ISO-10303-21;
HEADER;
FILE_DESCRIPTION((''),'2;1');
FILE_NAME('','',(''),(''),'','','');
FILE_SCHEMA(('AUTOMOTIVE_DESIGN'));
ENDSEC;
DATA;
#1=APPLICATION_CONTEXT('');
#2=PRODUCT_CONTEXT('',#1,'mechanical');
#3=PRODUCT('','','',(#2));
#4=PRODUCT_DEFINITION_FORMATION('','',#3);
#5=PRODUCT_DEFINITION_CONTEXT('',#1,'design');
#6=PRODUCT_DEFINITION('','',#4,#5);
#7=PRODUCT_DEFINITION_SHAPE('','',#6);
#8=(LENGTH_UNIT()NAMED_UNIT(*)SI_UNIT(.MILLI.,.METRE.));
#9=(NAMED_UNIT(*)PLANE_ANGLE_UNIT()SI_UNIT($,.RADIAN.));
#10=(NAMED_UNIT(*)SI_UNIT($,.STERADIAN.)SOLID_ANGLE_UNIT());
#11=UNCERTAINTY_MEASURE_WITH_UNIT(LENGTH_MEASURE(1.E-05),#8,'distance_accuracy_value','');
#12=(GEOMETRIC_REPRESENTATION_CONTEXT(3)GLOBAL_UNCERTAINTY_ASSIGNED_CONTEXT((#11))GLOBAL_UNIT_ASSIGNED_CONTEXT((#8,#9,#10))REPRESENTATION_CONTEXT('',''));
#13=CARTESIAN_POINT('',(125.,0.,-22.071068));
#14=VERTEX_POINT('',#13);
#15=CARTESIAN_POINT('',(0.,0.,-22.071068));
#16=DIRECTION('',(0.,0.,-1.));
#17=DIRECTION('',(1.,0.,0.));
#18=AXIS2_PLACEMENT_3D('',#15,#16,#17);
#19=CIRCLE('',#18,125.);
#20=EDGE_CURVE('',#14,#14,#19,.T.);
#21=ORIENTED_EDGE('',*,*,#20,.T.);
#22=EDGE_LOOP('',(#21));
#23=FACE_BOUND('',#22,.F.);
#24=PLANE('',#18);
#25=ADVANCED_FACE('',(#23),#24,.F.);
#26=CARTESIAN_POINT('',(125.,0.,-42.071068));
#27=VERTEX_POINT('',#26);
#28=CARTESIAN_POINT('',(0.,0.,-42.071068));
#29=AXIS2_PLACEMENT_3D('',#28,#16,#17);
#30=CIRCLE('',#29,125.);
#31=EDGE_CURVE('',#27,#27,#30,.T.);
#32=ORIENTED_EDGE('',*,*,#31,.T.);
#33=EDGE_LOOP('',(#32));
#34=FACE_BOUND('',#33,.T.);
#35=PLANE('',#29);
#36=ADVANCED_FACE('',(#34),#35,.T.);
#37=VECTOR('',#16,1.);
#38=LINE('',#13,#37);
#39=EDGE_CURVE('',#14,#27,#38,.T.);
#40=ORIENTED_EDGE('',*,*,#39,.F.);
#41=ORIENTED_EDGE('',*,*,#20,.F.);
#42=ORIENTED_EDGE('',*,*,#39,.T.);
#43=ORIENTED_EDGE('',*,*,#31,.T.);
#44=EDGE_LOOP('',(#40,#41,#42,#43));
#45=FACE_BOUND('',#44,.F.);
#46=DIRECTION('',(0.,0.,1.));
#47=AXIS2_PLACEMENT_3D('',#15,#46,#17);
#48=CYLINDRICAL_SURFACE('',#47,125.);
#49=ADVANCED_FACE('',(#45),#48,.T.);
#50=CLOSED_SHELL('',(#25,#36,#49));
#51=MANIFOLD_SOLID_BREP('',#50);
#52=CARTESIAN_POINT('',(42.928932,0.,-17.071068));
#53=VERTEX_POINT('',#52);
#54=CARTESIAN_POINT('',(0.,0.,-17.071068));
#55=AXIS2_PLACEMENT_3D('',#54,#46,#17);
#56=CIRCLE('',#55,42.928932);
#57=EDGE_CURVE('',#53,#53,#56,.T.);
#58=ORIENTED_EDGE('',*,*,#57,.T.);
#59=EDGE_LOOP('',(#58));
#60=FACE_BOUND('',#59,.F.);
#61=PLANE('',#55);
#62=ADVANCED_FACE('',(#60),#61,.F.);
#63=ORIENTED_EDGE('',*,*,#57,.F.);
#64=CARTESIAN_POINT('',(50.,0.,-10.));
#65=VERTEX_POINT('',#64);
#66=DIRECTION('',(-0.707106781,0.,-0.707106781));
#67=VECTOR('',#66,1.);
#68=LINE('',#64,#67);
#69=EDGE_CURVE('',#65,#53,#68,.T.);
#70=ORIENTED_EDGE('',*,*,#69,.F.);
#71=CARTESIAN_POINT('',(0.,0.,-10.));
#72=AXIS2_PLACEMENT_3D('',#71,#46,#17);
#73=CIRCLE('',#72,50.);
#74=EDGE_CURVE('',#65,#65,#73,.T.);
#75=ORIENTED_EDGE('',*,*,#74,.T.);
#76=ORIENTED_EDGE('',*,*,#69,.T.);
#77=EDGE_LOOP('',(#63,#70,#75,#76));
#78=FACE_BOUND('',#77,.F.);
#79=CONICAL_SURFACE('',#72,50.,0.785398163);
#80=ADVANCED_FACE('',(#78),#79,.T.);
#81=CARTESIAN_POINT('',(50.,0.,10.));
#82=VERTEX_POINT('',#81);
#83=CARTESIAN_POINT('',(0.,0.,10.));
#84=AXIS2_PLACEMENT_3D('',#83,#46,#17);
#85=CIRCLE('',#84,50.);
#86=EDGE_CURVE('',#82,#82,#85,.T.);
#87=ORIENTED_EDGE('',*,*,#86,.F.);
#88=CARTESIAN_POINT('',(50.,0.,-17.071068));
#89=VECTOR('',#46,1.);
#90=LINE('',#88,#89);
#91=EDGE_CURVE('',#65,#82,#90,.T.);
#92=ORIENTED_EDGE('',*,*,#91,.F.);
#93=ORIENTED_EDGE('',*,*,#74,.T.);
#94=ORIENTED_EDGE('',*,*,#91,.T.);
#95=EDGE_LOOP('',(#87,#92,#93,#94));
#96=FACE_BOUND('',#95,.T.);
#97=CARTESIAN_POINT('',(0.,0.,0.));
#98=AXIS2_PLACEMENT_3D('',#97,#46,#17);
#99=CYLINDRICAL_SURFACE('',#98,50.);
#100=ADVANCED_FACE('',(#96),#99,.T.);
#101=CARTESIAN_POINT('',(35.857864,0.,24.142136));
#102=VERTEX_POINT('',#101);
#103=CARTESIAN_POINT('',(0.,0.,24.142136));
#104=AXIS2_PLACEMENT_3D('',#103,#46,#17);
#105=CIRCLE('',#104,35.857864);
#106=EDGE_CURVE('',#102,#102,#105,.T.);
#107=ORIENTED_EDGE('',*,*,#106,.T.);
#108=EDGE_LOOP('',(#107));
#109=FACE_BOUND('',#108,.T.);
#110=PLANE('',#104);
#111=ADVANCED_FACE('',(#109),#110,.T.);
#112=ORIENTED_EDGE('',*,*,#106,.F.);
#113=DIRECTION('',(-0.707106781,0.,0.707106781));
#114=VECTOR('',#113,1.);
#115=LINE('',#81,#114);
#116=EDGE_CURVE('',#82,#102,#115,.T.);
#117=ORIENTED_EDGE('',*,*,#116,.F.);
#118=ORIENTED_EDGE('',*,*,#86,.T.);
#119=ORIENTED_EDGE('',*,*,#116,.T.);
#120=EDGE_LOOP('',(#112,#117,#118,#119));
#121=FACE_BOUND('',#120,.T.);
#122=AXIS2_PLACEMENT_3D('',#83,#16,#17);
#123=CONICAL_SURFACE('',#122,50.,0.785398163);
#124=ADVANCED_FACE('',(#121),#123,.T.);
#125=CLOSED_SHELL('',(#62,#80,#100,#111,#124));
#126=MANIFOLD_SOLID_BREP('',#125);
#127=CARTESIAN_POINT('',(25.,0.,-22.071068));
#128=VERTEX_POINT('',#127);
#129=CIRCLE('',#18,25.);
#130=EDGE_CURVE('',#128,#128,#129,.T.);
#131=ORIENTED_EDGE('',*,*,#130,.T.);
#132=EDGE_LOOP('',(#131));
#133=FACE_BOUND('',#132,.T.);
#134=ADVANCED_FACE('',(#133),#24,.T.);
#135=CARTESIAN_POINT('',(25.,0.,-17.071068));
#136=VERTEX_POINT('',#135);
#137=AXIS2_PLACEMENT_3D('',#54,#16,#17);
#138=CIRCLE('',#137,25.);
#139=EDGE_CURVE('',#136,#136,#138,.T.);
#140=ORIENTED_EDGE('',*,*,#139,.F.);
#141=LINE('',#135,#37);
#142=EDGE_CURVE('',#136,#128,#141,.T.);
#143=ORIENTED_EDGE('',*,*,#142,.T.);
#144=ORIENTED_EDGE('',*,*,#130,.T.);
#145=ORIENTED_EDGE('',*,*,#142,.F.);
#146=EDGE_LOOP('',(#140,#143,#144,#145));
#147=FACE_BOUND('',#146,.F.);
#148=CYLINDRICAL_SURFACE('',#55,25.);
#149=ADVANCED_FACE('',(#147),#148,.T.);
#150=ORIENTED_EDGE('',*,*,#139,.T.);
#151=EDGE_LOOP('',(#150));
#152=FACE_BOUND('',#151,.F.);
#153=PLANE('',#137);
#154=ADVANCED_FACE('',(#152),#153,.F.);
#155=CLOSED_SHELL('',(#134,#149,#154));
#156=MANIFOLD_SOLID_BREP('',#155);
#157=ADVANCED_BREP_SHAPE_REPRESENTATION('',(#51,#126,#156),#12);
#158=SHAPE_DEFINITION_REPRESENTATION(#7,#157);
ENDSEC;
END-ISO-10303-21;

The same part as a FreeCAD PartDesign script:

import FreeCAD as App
import Part
import Sketcher

V = App.Vector
Q = App.Units.Quantity


def edges_at(feature, points):
    """Names of the edges that pass closest to the given points."""
    edges = feature.Shape.Edges
    near = lambda p: min(range(len(edges)), key=lambda i: edges[i].distToShape(Part.Vertex(*p))[0])
    return sorted({f"Edge{near(p) + 1}" for p in points})

doc = App.newDocument("Part")
body = doc.addObject("PartDesign::Body", "Body")

# Sketch on XY plane
sketch1 = body.newObject("Sketcher::SketchObject", "Sketch")
sketch1.AttachmentSupport = (doc.getObject("XY_Plane"), [""])
sketch1.MapMode = "FlatFace"
sketch1.addGeometry(Part.Circle(V(0, 0, 0), V(0, 0, 1), 50), False)
sketch1.addConstraint(Sketcher.Constraint("Coincident", 0, 3, -1, 1))
sketch1.addConstraint(Sketcher.Constraint("Diameter", 0, Q("100 mm")))
pad1 = body.newObject("PartDesign::Pad", "Pad")
pad1.Profile = sketch1
pad1.Type = "TwoLengths"
pad1.Length = 24.142136
pad1.Length2 = 17.071068
doc.recompute()

chamfer = body.newObject("PartDesign::Chamfer", "Chamfer")
chamfer.Base = (pad1, edges_at(pad1, [(-50, 0, 24.142)]))
chamfer.Size = 14.142136
doc.recompute()

chamfer2 = body.newObject("PartDesign::Chamfer", "Chamfer001")
chamfer2.Base = (chamfer, edges_at(chamfer, [(-50, 0, -17.071)]))
chamfer2.Size = 7.071068
body2 = doc.addObject("PartDesign::Body", "Body001")

# Sketch on XY plane
sketch2 = body2.newObject("Sketcher::SketchObject", "Sketch001")
sketch2.AttachmentSupport = (doc.getObject("XY_Plane001"), [""])
sketch2.MapMode = "FlatFace"
sketch2.AttachmentOffset = App.Placement(V(0, 0, -17.071068), App.Rotation())
sketch2.addGeometry(Part.Circle(V(0, 0, 0), V(0, 0, 1), 25), False)
sketch2.addConstraint(Sketcher.Constraint("Coincident", 0, 3, -1, 1))
sketch2.addConstraint(Sketcher.Constraint("Diameter", 0, Q("50 mm")))
pad2 = body2.newObject("PartDesign::Pad", "Pad001")
pad2.Profile = sketch2
pad2.Length = 5
pad2.Reversed = True
body3 = doc.addObject("PartDesign::Body", "Body002")

# Sketch on XY plane
sketch3 = body3.newObject("Sketcher::SketchObject", "Sketch002")
sketch3.AttachmentSupport = (doc.getObject("XY_Plane002"), [""])
sketch3.MapMode = "FlatFace"
sketch3.AttachmentOffset = App.Placement(V(0, 0, -22.071068), App.Rotation())
sketch3.addGeometry(Part.Circle(V(0, 0, 0), V(0, 0, 1), 125), False)
sketch3.addConstraint(Sketcher.Constraint("Coincident", 0, 3, -1, 1))
sketch3.addConstraint(Sketcher.Constraint("Diameter", 0, Q("250 mm")))
pad3 = body3.newObject("PartDesign::Pad", "Pad002")
pad3.Profile = sketch3
pad3.Length = 20
pad3.Reversed = True

doc.recompute()
